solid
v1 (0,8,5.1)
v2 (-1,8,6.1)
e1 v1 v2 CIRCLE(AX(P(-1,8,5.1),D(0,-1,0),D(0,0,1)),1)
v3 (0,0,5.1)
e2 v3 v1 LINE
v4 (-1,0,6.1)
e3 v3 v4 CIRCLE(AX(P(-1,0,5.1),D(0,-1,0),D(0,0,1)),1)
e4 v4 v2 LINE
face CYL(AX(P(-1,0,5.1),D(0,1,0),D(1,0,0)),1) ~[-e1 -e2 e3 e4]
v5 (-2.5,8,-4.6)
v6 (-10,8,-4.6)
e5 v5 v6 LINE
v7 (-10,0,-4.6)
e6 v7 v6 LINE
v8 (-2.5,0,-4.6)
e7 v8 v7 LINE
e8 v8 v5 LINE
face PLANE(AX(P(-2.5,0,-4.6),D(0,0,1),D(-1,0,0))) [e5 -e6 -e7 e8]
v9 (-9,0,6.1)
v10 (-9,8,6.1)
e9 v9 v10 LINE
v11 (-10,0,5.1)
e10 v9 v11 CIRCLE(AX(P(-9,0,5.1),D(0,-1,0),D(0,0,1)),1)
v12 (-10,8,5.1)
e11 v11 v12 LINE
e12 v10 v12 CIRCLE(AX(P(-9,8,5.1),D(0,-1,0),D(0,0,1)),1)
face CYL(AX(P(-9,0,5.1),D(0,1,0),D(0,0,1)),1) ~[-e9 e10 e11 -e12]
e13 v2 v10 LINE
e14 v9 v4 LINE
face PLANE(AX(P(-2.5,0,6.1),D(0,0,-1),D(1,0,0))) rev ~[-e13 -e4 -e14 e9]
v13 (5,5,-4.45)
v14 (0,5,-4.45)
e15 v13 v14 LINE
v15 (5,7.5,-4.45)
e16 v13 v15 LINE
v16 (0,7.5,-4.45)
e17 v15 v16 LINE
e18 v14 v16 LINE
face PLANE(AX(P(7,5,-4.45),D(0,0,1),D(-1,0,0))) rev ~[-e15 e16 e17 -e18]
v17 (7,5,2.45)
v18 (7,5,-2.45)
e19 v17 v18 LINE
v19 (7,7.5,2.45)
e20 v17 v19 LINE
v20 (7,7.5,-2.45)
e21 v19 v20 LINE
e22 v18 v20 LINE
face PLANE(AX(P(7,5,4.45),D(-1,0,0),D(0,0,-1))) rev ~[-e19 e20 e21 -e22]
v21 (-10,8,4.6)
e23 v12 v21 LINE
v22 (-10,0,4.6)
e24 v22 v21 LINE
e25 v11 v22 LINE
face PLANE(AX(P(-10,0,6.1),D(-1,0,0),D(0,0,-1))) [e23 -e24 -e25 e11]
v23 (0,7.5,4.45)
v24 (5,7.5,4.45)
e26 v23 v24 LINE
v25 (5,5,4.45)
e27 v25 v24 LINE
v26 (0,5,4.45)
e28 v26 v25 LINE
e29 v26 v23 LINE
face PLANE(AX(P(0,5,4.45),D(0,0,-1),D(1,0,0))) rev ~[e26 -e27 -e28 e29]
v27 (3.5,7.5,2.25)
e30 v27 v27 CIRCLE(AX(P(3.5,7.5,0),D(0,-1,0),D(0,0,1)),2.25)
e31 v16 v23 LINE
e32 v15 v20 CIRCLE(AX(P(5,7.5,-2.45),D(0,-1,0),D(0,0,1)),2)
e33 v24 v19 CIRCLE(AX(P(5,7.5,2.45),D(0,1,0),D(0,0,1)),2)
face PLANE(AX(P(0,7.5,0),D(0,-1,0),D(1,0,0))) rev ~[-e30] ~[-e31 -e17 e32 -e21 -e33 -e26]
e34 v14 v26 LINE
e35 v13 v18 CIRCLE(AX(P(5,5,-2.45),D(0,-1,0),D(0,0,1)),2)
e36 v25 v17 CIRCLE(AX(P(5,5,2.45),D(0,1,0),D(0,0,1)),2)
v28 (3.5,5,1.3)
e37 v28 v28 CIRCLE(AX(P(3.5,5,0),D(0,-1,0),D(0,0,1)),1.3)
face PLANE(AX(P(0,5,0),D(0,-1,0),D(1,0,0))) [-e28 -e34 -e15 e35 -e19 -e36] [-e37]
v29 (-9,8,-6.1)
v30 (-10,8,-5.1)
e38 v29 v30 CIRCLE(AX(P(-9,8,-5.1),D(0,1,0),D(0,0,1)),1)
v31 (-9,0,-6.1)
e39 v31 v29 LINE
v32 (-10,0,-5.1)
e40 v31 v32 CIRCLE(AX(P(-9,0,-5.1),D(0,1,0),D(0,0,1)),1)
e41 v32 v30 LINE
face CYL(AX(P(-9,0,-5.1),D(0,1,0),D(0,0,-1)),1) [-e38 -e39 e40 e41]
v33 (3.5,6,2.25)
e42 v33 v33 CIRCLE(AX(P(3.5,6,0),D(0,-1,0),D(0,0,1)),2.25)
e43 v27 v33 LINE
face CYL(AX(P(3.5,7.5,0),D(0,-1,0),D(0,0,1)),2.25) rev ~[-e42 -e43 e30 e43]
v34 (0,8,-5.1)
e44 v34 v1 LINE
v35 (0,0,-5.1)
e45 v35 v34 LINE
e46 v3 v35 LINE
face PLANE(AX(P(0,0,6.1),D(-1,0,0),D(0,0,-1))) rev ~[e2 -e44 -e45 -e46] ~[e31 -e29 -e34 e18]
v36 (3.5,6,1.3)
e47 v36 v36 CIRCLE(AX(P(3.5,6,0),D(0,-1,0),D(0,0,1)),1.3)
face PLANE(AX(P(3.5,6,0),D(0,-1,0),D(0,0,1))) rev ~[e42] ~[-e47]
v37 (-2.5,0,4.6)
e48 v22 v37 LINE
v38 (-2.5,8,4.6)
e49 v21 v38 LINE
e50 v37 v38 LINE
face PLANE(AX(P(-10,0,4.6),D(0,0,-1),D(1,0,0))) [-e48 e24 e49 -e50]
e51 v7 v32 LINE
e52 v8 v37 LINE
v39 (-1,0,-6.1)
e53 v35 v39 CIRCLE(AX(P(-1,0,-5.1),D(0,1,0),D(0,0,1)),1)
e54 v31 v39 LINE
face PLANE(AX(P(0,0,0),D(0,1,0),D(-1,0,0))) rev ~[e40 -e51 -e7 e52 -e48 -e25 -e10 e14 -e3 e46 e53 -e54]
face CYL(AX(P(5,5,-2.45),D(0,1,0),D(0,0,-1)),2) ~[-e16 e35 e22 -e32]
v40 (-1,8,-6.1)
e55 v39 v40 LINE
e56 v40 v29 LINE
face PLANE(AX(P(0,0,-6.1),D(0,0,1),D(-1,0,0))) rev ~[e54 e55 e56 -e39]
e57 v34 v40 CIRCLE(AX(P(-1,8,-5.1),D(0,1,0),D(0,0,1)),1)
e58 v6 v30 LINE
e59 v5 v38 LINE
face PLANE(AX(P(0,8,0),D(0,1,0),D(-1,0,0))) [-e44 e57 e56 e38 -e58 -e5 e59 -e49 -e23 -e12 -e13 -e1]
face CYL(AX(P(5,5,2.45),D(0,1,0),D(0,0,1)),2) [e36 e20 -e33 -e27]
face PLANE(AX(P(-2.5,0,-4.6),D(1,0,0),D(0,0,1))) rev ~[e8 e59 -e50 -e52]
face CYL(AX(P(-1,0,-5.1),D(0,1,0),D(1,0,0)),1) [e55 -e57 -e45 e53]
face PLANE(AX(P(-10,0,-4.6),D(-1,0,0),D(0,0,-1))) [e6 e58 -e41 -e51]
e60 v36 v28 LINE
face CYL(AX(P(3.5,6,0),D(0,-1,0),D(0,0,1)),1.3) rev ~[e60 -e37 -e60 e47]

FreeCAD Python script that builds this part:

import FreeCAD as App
import Part
import Sketcher

V = App.Vector


def edges_at(feature, points):
    """Names of the edges that pass closest to the given points."""
    edges = feature.Shape.Edges
    near = lambda p: min(range(len(edges)), key=lambda i: edges[i].distToShape(Part.Vertex(*p))[0])
    return sorted({f"Edge{near(p) + 1}" for p in points})

doc = App.newDocument("Part")
body = doc.addObject("PartDesign::Body", "Body")

# Sketch on XZ plane
sketch1 = doc.addObject("Sketcher::SketchObject", "Sketch")
body.addObject(sketch1)
sketch1.AttachmentSupport = (doc.XZ_Plane, [""])
sketch1.MapMode = "FlatFace"
sketch1.addGeometry(Part.LineSegment(V(0, 6.1, 0), V(0, -6.1, 0)), False)
sketch1.addGeometry(Part.LineSegment(V(0, -6.1, 0), V(-10, -6.1, 0)), False)
sketch1.addGeometry(Part.LineSegment(V(-10, -6.1, 0), V(-10, -4.6, 0)), False)
sketch1.addGeometry(Part.LineSegment(V(-10, -4.6, 0), V(-2.5, -4.6, 0)), False)
sketch1.addGeometry(Part.LineSegment(V(-2.5, -4.6, 0), V(-2.5, 4.6, 0)), False)
sketch1.addGeometry(Part.LineSegment(V(-2.5, 4.6, 0), V(-10, 4.6, 0)), False)
sketch1.addGeometry(Part.LineSegment(V(-10, 4.6, 0), V(-10, 6.1, 0)), False)
sketch1.addGeometry(Part.LineSegment(V(-10, 6.1, 0), V(0, 6.1, 0)), False)
sketch1.addConstraint(Sketcher.Constraint("Coincident", 0, 2, 1, 1))
sketch1.addConstraint(Sketcher.Constraint("Coincident", 1, 2, 2, 1))
sketch1.addConstraint(Sketcher.Constraint("Coincident", 2, 2, 3, 1))
sketch1.addConstraint(Sketcher.Constraint("Coincident", 3, 2, 4, 1))
sketch1.addConstraint(Sketcher.Constraint("Coincident", 4, 2, 5, 1))
sketch1.addConstraint(Sketcher.Constraint("Coincident", 5, 2, 6, 1))
sketch1.addConstraint(Sketcher.Constraint("Coincident", 6, 2, 7, 1))
sketch1.addConstraint(Sketcher.Constraint("Coincident", 7, 2, 0, 1))
sketch1.addConstraint(Sketcher.Constraint("Vertical", 0))
sketch1.addConstraint(Sketcher.Constraint("Horizontal", 1))
sketch1.addConstraint(Sketcher.Constraint("Vertical", 2))
sketch1.addConstraint(Sketcher.Constraint("Horizontal", 3))
sketch1.addConstraint(Sketcher.Constraint("Vertical", 4))
sketch1.addConstraint(Sketcher.Constraint("Horizontal", 5))
sketch1.addConstraint(Sketcher.Constraint("Vertical", 6))
sketch1.addConstraint(Sketcher.Constraint("Horizontal", 7))
sketch1.addConstraint(Sketcher.Constraint("Symmetric", 0, 2, 7, 2, -1, 1))
sketch1.addConstraint(Sketcher.Constraint("Symmetric", 2, 2, 5, 2, -1))
sketch1.addConstraint(Sketcher.Constraint("DistanceX", 1, 2, 1, 1, 10.0))
sketch1.addConstraint(Sketcher.Constraint("DistanceY", 2, 1, 2, 2, 1.5))
sketch1.addConstraint(Sketcher.Constraint("DistanceY", 4, 1, 4, 2, 9.2))
sketch1.addConstraint(Sketcher.Constraint("DistanceX", 3, 2, -1, 1, 2.5))
pad1 = doc.addObject("PartDesign::Pad", "Pad")
body.addObject(pad1)
pad1.Profile = sketch1
pad1.Length = 8
pad1.Reversed = True

# Sketch on XZ plane
sketch2 = doc.addObject("Sketcher::SketchObject", "Sketch001")
body.addObject(sketch2)
sketch2.AttachmentSupport = (doc.XZ_Plane, [""])
sketch2.MapMode = "FlatFace"
sketch2.AttachmentOffset = App.Placement(V(0, 0, -5), App.Rotation())
sketch2.addGeometry(Part.LineSegment(V(0, -4, 0), V(7, -4, 0)), False)
sketch2.addGeometry(Part.LineSegment(V(7, -4, 0), V(7, 4, 0)), False)
sketch2.addGeometry(Part.LineSegment(V(7, 4, 0), V(0, 4, 0)), False)
sketch2.addGeometry(Part.LineSegment(V(0, 4, 0), V(0, -4, 0)), False)
sketch2.addConstraint(Sketcher.Constraint("Coincident", 0, 2, 1, 1))
sketch2.addConstraint(Sketcher.Constraint("Coincident", 1, 2, 2, 1))
sketch2.addConstraint(Sketcher.Constraint("Coincident", 2, 2, 3, 1))
sketch2.addConstraint(Sketcher.Constraint("Coincident", 3, 2, 0, 1))
sketch2.addConstraint(Sketcher.Constraint("Horizontal", 0))
sketch2.addConstraint(Sketcher.Constraint("Vertical", 1))
sketch2.addConstraint(Sketcher.Constraint("Horizontal", 2))
sketch2.addConstraint(Sketcher.Constraint("Vertical", 3))
sketch2.addConstraint(Sketcher.Constraint("Symmetric", 2, 2, 3, 2, -1, 1))
sketch2.addConstraint(Sketcher.Constraint("DistanceX", 0, 1, 0, 2, 7.0))
sketch2.addConstraint(Sketcher.Constraint("DistanceY", 1, 1, 1, 2, 8.9))
pad2 = doc.addObject("PartDesign::Pad", "Pad001")
body.addObject(pad2)
pad2.Profile = sketch2
pad2.Length = 2.5
pad2.Reversed = True

# Sketch on XZ plane
sketch3 = doc.addObject("Sketcher::SketchObject", "Sketch002")
body.addObject(sketch3)
sketch3.AttachmentSupport = (doc.XZ_Plane, [""])
sketch3.MapMode = "FlatFace"
sketch3.AttachmentOffset = App.Placement(V(0, 0, -7.5), App.Rotation())
sketch3.addGeometry(Part.Circle(V(3.5, 0, 0), V(0, 0, 1), 1.3), False)
sketch3.addConstraint(Sketcher.Constraint("PointOnObject", 0, 3, -1))
sketch3.addConstraint(Sketcher.Constraint("Diameter", 0, 2.6))
sketch3.addConstraint(Sketcher.Constraint("DistanceX", -1, 1, 0, 3, 3.5))
doc.recompute()
hole = doc.addObject("PartDesign::Hole", "Hole")
body.addObject(hole)
hole.Profile = sketch3
hole.ThreadType = "None"
hole.Diameter = 2.6
hole.DepthType = "ThroughAll"
hole.HoleCutType = "Counterbore"
hole.HoleCutDiameter = 4.5
hole.HoleCutDepth = 1.5
hole.Reversed = True
doc.recompute()

fillet = doc.addObject("PartDesign::Fillet", "Fillet")
body.addObject(fillet)
fillet.Base = (hole, edges_at(hole, [(7, 6.25, 4.45), (7, 6.25, -4.45)]))
fillet.Radius = 2
doc.recompute()

fillet2 = doc.addObject("PartDesign::Fillet", "Fillet001")
body.addObject(fillet2)
fillet2.Base = (fillet, edges_at(fillet, [
    (-10, 4, -6.1),
    (0, 4, -6.1),
    (-10, 4, 6.1),
    (0, 4, 6.1),
]))
fillet2.Radius = 1

doc.recompute()
